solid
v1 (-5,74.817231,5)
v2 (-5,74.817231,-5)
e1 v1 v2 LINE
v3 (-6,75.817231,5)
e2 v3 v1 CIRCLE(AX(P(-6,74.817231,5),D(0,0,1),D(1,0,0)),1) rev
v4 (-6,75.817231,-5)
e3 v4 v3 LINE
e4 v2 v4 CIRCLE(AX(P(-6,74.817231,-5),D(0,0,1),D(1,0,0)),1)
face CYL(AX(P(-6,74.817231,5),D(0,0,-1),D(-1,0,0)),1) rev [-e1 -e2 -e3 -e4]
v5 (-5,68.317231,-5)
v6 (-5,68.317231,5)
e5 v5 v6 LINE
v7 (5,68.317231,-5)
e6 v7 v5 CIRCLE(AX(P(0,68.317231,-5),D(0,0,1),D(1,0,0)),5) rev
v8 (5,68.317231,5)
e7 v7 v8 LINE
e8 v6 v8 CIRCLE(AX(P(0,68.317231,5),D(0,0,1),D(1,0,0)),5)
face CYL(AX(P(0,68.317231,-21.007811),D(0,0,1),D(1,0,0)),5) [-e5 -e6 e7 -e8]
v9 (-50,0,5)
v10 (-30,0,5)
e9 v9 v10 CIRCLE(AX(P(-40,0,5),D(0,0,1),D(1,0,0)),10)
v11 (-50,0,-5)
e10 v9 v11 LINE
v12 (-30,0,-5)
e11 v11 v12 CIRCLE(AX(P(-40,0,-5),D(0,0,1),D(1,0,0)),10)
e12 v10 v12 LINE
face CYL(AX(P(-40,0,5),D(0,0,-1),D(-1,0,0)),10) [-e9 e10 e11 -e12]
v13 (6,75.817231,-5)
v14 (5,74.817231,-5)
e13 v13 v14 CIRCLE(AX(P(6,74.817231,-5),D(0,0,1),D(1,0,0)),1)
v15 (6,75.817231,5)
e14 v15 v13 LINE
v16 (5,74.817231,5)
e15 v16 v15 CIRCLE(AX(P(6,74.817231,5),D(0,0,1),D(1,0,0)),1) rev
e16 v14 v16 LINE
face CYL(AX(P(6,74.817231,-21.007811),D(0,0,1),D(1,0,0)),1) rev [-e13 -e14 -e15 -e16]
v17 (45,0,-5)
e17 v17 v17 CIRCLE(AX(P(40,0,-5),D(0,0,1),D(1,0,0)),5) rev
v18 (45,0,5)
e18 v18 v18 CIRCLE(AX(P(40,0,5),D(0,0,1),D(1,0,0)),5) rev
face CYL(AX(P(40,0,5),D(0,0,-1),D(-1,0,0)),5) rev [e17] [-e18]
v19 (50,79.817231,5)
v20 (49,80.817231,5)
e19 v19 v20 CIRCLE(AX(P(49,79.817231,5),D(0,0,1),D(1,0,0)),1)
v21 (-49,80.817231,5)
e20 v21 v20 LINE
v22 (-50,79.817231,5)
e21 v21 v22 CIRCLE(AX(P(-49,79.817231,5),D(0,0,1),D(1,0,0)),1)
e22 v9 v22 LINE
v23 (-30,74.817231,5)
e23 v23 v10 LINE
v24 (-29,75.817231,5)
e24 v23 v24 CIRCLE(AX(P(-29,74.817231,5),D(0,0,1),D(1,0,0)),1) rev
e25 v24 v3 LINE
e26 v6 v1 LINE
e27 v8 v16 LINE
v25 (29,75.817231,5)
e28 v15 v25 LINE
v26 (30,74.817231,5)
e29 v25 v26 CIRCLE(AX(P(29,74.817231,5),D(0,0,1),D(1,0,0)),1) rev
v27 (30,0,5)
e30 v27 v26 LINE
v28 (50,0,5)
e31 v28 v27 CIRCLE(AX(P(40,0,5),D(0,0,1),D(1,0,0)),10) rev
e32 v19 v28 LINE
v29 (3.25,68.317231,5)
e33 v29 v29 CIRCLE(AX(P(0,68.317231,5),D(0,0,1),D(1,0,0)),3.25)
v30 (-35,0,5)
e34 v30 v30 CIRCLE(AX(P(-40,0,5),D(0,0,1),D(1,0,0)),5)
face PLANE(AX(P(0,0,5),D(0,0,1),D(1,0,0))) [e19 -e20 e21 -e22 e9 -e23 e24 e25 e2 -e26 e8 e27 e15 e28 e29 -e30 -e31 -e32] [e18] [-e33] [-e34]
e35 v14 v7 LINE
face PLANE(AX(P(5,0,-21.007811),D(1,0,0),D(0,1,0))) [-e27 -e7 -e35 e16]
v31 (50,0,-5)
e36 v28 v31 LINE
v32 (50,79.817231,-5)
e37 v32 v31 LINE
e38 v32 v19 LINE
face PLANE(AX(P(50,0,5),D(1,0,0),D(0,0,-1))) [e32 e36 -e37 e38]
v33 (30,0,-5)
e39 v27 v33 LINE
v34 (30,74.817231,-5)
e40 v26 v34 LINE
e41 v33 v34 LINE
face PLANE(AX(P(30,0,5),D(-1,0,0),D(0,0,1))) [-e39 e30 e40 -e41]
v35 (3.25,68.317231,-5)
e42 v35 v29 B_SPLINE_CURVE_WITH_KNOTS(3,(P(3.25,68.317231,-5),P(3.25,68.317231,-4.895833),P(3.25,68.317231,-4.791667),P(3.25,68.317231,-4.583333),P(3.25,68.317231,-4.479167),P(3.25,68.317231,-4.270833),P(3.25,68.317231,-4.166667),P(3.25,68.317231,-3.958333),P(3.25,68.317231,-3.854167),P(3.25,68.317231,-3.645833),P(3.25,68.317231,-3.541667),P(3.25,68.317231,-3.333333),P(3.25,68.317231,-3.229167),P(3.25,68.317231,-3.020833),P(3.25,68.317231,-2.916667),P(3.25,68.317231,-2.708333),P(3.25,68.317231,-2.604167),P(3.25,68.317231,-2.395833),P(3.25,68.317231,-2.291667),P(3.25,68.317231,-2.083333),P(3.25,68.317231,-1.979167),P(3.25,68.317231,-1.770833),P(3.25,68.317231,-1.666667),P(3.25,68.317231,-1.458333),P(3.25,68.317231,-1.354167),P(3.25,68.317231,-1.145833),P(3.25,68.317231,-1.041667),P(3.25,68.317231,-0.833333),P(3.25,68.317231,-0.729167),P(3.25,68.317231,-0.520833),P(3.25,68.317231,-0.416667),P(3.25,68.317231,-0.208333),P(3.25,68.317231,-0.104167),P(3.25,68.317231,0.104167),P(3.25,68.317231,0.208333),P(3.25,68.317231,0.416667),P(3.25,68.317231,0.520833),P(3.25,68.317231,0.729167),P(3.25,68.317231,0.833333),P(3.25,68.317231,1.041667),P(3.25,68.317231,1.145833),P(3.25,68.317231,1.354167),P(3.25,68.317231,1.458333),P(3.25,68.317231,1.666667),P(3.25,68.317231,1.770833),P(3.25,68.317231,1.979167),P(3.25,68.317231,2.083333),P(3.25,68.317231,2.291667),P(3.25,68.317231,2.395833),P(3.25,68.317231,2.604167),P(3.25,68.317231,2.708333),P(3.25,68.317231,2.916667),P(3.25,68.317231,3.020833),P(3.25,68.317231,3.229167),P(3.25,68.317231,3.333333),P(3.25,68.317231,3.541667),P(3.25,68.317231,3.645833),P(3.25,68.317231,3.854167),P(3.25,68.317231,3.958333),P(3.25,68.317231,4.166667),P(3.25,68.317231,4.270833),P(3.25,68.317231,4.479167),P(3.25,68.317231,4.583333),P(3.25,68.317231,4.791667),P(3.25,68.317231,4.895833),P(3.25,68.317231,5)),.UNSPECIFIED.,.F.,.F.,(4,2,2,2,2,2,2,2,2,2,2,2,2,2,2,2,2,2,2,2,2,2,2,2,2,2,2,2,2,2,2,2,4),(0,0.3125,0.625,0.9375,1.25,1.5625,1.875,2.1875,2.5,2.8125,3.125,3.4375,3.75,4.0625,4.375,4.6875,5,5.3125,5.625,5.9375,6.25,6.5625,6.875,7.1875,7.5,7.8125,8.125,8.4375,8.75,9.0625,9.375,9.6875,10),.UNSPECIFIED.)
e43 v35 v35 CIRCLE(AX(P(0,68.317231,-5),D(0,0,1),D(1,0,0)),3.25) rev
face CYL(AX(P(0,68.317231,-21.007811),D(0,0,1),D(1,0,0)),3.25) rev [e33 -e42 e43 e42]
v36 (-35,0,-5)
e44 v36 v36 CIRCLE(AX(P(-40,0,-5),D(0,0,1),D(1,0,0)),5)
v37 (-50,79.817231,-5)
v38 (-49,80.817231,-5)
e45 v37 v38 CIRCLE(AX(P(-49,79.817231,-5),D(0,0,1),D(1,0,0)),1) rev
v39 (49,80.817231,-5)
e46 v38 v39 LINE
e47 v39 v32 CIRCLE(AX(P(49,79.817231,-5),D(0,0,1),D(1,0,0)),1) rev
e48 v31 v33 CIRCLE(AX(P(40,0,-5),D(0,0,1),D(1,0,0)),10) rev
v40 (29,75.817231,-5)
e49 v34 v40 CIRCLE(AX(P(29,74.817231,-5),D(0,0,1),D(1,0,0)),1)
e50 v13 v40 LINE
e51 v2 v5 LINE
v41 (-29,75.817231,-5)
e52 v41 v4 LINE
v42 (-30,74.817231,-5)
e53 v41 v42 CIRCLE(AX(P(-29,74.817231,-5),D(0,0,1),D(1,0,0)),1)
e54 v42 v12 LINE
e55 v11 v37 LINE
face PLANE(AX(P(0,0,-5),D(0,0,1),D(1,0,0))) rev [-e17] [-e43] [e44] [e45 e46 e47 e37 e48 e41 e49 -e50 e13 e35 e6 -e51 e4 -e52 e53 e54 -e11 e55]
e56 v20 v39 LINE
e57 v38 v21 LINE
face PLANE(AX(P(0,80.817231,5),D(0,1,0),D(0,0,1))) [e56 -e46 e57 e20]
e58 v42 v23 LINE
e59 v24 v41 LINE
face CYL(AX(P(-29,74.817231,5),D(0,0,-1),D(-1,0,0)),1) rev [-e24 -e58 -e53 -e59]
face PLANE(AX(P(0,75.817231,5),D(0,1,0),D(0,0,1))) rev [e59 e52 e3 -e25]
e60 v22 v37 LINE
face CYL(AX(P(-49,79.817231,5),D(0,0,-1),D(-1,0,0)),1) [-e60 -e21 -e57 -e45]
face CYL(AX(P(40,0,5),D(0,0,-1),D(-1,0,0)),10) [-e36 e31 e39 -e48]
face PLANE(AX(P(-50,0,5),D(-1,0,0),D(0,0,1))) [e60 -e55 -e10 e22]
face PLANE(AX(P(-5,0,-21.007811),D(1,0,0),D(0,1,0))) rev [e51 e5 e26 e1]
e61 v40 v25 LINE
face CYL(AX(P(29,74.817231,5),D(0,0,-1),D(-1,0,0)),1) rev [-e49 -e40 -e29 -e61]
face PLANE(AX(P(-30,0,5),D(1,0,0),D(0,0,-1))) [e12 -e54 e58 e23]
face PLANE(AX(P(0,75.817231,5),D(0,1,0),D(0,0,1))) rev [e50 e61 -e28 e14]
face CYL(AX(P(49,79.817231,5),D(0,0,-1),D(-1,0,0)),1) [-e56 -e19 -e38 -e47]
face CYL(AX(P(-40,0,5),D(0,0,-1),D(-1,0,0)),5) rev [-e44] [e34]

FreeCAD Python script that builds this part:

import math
import FreeCAD as App
import Part
import Sketcher
from FreeCAD import Vector
Q = App.Units.Quantity


def edges_at(feature, points):
    """Names of the edges that pass closest to the given points."""
    edges = feature.Shape.Edges
    near = lambda p: min(range(len(edges)), key=lambda i: edges[i].distToShape(Part.Vertex(*p))[0])
    return sorted({f"Edge{near(p) + 1}" for p in points})

doc = App.newDocument("Part")
body = doc.addObject("PartDesign::Body", "Body")

sketch1 = body.newObject("Sketcher::SketchObject", "Sketch")
sketch1.AttachmentSupport = (doc.getObject("XY_Plane"), [""])
sketch1.MapMode = "FlatFace"
sketch1.addGeometry(Part.LineSegment(Vector(-50, 80.817231, 0), Vector(-50, 0, 0)), False)
sketch1.addGeometry(Part.ArcOfCircle(Part.Circle(Vector(-40, 0, 0), Vector(0, 0, 1), 10), math.radians(180), math.radians(360)), False)
sketch1.addGeometry(Part.LineSegment(Vector(-30, 0, 0), Vector(-30, 75.817231, 0)), False)
sketch1.addGeometry(Part.LineSegment(Vector(-30, 75.817231, 0), Vector(30, 75.817231, 0)), False)
sketch1.addGeometry(Part.LineSegment(Vector(30, 75.817231, 0), Vector(30, 0, 0)), False)
sketch1.addGeometry(Part.ArcOfCircle(Part.Circle(Vector(40, 0, 0), Vector(0, 0, 1), 10), math.radians(180), math.radians(360)), False)
sketch1.addGeometry(Part.LineSegment(Vector(50, 0, 0), Vector(50, 80.817231, 0)), False)
sketch1.addGeometry(Part.LineSegment(Vector(50, 80.817231, 0), Vector(-50, 80.817231, 0)), False)
sketch1.addGeometry(Part.Circle(Vector(-40, 0, 0), Vector(0, 0, 1), 5), False)
sketch1.addGeometry(Part.Circle(Vector(40, 0, 0), Vector(0, 0, 1), 5), False)
sketch1.addConstraint(Sketcher.Constraint("Tangent", 0, 2, 1, 1))
sketch1.addConstraint(Sketcher.Constraint("Tangent", 1, 2, 2, 1))
sketch1.addConstraint(Sketcher.Constraint("Coincident", 2, 2, 3, 1))
sketch1.addConstraint(Sketcher.Constraint("Coincident", 3, 2, 4, 1))
sketch1.addConstraint(Sketcher.Constraint("Tangent", 4, 2, 5, 1))
sketch1.addConstraint(Sketcher.Constraint("Tangent", 5, 2, 6, 1))
sketch1.addConstraint(Sketcher.Constraint("Coincident", 6, 2, 7, 1))
sketch1.addConstraint(Sketcher.Constraint("Coincident", 7, 2, 0, 1))
sketch1.addConstraint(Sketcher.Constraint("Vertical", 0))
sketch1.addConstraint(Sketcher.Constraint("Vertical", 2))
sketch1.addConstraint(Sketcher.Constraint("Horizontal", 3))
sketch1.addConstraint(Sketcher.Constraint("Vertical", 4))
sketch1.addConstraint(Sketcher.Constraint("Vertical", 6))
sketch1.addConstraint(Sketcher.Constraint("Horizontal", 7))
sketch1.addConstraint(Sketcher.Constraint("Coincident", 8, 3, 1, 3))
sketch1.addConstraint(Sketcher.Constraint("Coincident", 9, 3, 5, 3))
sketch1.addConstraint(Sketcher.Constraint("Equal", 1, 5))
sketch1.addConstraint(Sketcher.Constraint("Equal", 8, 9))
sketch1.addConstraint(Sketcher.Constraint("Symmetric", 1, 3, 5, 3, -1, 1))
sketch1.addConstraint(Sketcher.Constraint("PointOnObject", 1, 3, -1))
sketch1.addConstraint(Sketcher.Constraint("Diameter", 8, Q("10 mm")))
sketch1.addConstraint(Sketcher.Constraint("Radius", 1, Q("10 mm")))
sketch1.addConstraint(Sketcher.Constraint("DistanceX", 3, 1, 3, 2, Q("60 mm")))
sketch1.addConstraint(Sketcher.Constraint("DistanceY", 3, 2, 6, 2, Q("5 mm")))
sketch1.addConstraint(Sketcher.Constraint("DistanceY", 0, 2, 0, 1, Q("80.817231 mm")))
pad1 = body.newObject("PartDesign::Pad", "Pad")
pad1.Profile = sketch1
pad1.Length = 10
pad1.Midplane = True

sketch2 = body.newObject("Sketcher::SketchObject", "Sketch001")
sketch2.AttachmentSupport = (doc.getObject("XY_Plane"), [""])
sketch2.MapMode = "FlatFace"
sketch2.AttachmentOffset = App.Placement(Vector(0, 0, 5), App.Rotation())
sketch2.addGeometry(Part.LineSegment(Vector(-5, 75.817231, 0), Vector(-5, 68.317231, 0)), False)
sketch2.addGeometry(Part.ArcOfCircle(Part.Circle(Vector(0, 68.317231, 0), Vector(0, 0, 1), 5), math.radians(180), math.radians(360)), False)
sketch2.addGeometry(Part.LineSegment(Vector(5, 68.317231, 0), Vector(5, 75.817231, 0)), False)
sketch2.addGeometry(Part.LineSegment(Vector(5, 75.817231, 0), Vector(-5, 75.817231, 0)), False)
sketch2.addGeometry(Part.Circle(Vector(0, 68.317231, 0), Vector(0, 0, 1), 3.25), False)
sketch2.addConstraint(Sketcher.Constraint("Tangent", 0, 2, 1, 1))
sketch2.addConstraint(Sketcher.Constraint("Tangent", 1, 2, 2, 1))
sketch2.addConstraint(Sketcher.Constraint("Coincident", 2, 2, 3, 1))
sketch2.addConstraint(Sketcher.Constraint("Coincident", 3, 2, 0, 1))
sketch2.addConstraint(Sketcher.Constraint("Vertical", 0))
sketch2.addConstraint(Sketcher.Constraint("Vertical", 2))
sketch2.addConstraint(Sketcher.Constraint("Horizontal", 3))
sketch2.addConstraint(Sketcher.Constraint("Coincident", 4, 3, 1, 3))
sketch2.addConstraint(Sketcher.Constraint("PointOnObject", 1, 3, -2))
sketch2.addConstraint(Sketcher.Constraint("Radius", 1, Q("5 mm")))
sketch2.addConstraint(Sketcher.Constraint("Diameter", 4, Q("6.5 mm")))
sketch2.addConstraint(Sketcher.Constraint("DistanceY", 0, 2, 0, 1, Q("7.5 mm")))
sketch2.addConstraint(Sketcher.Constraint("DistanceY", -1, 1, 1, 3, Q("68.317231 mm")))
pad2 = body.newObject("PartDesign::Pad", "Pad001")
pad2.Profile = sketch2
pad2.Length = 10
pad2.Reversed = True
doc.recompute()

fillet = body.newObject("PartDesign::Fillet", "Fillet")
fillet.Base = (pad2, edges_at(pad2, [
    (-50, 80.817, 0),
    (50, 80.817, 0),
    (30, 75.817, 0),
    (-30, 75.817, 0),
    (-5, 75.817, 0),
    (5, 75.817, 0),
]))
fillet.Radius = 1

doc.recompute()
